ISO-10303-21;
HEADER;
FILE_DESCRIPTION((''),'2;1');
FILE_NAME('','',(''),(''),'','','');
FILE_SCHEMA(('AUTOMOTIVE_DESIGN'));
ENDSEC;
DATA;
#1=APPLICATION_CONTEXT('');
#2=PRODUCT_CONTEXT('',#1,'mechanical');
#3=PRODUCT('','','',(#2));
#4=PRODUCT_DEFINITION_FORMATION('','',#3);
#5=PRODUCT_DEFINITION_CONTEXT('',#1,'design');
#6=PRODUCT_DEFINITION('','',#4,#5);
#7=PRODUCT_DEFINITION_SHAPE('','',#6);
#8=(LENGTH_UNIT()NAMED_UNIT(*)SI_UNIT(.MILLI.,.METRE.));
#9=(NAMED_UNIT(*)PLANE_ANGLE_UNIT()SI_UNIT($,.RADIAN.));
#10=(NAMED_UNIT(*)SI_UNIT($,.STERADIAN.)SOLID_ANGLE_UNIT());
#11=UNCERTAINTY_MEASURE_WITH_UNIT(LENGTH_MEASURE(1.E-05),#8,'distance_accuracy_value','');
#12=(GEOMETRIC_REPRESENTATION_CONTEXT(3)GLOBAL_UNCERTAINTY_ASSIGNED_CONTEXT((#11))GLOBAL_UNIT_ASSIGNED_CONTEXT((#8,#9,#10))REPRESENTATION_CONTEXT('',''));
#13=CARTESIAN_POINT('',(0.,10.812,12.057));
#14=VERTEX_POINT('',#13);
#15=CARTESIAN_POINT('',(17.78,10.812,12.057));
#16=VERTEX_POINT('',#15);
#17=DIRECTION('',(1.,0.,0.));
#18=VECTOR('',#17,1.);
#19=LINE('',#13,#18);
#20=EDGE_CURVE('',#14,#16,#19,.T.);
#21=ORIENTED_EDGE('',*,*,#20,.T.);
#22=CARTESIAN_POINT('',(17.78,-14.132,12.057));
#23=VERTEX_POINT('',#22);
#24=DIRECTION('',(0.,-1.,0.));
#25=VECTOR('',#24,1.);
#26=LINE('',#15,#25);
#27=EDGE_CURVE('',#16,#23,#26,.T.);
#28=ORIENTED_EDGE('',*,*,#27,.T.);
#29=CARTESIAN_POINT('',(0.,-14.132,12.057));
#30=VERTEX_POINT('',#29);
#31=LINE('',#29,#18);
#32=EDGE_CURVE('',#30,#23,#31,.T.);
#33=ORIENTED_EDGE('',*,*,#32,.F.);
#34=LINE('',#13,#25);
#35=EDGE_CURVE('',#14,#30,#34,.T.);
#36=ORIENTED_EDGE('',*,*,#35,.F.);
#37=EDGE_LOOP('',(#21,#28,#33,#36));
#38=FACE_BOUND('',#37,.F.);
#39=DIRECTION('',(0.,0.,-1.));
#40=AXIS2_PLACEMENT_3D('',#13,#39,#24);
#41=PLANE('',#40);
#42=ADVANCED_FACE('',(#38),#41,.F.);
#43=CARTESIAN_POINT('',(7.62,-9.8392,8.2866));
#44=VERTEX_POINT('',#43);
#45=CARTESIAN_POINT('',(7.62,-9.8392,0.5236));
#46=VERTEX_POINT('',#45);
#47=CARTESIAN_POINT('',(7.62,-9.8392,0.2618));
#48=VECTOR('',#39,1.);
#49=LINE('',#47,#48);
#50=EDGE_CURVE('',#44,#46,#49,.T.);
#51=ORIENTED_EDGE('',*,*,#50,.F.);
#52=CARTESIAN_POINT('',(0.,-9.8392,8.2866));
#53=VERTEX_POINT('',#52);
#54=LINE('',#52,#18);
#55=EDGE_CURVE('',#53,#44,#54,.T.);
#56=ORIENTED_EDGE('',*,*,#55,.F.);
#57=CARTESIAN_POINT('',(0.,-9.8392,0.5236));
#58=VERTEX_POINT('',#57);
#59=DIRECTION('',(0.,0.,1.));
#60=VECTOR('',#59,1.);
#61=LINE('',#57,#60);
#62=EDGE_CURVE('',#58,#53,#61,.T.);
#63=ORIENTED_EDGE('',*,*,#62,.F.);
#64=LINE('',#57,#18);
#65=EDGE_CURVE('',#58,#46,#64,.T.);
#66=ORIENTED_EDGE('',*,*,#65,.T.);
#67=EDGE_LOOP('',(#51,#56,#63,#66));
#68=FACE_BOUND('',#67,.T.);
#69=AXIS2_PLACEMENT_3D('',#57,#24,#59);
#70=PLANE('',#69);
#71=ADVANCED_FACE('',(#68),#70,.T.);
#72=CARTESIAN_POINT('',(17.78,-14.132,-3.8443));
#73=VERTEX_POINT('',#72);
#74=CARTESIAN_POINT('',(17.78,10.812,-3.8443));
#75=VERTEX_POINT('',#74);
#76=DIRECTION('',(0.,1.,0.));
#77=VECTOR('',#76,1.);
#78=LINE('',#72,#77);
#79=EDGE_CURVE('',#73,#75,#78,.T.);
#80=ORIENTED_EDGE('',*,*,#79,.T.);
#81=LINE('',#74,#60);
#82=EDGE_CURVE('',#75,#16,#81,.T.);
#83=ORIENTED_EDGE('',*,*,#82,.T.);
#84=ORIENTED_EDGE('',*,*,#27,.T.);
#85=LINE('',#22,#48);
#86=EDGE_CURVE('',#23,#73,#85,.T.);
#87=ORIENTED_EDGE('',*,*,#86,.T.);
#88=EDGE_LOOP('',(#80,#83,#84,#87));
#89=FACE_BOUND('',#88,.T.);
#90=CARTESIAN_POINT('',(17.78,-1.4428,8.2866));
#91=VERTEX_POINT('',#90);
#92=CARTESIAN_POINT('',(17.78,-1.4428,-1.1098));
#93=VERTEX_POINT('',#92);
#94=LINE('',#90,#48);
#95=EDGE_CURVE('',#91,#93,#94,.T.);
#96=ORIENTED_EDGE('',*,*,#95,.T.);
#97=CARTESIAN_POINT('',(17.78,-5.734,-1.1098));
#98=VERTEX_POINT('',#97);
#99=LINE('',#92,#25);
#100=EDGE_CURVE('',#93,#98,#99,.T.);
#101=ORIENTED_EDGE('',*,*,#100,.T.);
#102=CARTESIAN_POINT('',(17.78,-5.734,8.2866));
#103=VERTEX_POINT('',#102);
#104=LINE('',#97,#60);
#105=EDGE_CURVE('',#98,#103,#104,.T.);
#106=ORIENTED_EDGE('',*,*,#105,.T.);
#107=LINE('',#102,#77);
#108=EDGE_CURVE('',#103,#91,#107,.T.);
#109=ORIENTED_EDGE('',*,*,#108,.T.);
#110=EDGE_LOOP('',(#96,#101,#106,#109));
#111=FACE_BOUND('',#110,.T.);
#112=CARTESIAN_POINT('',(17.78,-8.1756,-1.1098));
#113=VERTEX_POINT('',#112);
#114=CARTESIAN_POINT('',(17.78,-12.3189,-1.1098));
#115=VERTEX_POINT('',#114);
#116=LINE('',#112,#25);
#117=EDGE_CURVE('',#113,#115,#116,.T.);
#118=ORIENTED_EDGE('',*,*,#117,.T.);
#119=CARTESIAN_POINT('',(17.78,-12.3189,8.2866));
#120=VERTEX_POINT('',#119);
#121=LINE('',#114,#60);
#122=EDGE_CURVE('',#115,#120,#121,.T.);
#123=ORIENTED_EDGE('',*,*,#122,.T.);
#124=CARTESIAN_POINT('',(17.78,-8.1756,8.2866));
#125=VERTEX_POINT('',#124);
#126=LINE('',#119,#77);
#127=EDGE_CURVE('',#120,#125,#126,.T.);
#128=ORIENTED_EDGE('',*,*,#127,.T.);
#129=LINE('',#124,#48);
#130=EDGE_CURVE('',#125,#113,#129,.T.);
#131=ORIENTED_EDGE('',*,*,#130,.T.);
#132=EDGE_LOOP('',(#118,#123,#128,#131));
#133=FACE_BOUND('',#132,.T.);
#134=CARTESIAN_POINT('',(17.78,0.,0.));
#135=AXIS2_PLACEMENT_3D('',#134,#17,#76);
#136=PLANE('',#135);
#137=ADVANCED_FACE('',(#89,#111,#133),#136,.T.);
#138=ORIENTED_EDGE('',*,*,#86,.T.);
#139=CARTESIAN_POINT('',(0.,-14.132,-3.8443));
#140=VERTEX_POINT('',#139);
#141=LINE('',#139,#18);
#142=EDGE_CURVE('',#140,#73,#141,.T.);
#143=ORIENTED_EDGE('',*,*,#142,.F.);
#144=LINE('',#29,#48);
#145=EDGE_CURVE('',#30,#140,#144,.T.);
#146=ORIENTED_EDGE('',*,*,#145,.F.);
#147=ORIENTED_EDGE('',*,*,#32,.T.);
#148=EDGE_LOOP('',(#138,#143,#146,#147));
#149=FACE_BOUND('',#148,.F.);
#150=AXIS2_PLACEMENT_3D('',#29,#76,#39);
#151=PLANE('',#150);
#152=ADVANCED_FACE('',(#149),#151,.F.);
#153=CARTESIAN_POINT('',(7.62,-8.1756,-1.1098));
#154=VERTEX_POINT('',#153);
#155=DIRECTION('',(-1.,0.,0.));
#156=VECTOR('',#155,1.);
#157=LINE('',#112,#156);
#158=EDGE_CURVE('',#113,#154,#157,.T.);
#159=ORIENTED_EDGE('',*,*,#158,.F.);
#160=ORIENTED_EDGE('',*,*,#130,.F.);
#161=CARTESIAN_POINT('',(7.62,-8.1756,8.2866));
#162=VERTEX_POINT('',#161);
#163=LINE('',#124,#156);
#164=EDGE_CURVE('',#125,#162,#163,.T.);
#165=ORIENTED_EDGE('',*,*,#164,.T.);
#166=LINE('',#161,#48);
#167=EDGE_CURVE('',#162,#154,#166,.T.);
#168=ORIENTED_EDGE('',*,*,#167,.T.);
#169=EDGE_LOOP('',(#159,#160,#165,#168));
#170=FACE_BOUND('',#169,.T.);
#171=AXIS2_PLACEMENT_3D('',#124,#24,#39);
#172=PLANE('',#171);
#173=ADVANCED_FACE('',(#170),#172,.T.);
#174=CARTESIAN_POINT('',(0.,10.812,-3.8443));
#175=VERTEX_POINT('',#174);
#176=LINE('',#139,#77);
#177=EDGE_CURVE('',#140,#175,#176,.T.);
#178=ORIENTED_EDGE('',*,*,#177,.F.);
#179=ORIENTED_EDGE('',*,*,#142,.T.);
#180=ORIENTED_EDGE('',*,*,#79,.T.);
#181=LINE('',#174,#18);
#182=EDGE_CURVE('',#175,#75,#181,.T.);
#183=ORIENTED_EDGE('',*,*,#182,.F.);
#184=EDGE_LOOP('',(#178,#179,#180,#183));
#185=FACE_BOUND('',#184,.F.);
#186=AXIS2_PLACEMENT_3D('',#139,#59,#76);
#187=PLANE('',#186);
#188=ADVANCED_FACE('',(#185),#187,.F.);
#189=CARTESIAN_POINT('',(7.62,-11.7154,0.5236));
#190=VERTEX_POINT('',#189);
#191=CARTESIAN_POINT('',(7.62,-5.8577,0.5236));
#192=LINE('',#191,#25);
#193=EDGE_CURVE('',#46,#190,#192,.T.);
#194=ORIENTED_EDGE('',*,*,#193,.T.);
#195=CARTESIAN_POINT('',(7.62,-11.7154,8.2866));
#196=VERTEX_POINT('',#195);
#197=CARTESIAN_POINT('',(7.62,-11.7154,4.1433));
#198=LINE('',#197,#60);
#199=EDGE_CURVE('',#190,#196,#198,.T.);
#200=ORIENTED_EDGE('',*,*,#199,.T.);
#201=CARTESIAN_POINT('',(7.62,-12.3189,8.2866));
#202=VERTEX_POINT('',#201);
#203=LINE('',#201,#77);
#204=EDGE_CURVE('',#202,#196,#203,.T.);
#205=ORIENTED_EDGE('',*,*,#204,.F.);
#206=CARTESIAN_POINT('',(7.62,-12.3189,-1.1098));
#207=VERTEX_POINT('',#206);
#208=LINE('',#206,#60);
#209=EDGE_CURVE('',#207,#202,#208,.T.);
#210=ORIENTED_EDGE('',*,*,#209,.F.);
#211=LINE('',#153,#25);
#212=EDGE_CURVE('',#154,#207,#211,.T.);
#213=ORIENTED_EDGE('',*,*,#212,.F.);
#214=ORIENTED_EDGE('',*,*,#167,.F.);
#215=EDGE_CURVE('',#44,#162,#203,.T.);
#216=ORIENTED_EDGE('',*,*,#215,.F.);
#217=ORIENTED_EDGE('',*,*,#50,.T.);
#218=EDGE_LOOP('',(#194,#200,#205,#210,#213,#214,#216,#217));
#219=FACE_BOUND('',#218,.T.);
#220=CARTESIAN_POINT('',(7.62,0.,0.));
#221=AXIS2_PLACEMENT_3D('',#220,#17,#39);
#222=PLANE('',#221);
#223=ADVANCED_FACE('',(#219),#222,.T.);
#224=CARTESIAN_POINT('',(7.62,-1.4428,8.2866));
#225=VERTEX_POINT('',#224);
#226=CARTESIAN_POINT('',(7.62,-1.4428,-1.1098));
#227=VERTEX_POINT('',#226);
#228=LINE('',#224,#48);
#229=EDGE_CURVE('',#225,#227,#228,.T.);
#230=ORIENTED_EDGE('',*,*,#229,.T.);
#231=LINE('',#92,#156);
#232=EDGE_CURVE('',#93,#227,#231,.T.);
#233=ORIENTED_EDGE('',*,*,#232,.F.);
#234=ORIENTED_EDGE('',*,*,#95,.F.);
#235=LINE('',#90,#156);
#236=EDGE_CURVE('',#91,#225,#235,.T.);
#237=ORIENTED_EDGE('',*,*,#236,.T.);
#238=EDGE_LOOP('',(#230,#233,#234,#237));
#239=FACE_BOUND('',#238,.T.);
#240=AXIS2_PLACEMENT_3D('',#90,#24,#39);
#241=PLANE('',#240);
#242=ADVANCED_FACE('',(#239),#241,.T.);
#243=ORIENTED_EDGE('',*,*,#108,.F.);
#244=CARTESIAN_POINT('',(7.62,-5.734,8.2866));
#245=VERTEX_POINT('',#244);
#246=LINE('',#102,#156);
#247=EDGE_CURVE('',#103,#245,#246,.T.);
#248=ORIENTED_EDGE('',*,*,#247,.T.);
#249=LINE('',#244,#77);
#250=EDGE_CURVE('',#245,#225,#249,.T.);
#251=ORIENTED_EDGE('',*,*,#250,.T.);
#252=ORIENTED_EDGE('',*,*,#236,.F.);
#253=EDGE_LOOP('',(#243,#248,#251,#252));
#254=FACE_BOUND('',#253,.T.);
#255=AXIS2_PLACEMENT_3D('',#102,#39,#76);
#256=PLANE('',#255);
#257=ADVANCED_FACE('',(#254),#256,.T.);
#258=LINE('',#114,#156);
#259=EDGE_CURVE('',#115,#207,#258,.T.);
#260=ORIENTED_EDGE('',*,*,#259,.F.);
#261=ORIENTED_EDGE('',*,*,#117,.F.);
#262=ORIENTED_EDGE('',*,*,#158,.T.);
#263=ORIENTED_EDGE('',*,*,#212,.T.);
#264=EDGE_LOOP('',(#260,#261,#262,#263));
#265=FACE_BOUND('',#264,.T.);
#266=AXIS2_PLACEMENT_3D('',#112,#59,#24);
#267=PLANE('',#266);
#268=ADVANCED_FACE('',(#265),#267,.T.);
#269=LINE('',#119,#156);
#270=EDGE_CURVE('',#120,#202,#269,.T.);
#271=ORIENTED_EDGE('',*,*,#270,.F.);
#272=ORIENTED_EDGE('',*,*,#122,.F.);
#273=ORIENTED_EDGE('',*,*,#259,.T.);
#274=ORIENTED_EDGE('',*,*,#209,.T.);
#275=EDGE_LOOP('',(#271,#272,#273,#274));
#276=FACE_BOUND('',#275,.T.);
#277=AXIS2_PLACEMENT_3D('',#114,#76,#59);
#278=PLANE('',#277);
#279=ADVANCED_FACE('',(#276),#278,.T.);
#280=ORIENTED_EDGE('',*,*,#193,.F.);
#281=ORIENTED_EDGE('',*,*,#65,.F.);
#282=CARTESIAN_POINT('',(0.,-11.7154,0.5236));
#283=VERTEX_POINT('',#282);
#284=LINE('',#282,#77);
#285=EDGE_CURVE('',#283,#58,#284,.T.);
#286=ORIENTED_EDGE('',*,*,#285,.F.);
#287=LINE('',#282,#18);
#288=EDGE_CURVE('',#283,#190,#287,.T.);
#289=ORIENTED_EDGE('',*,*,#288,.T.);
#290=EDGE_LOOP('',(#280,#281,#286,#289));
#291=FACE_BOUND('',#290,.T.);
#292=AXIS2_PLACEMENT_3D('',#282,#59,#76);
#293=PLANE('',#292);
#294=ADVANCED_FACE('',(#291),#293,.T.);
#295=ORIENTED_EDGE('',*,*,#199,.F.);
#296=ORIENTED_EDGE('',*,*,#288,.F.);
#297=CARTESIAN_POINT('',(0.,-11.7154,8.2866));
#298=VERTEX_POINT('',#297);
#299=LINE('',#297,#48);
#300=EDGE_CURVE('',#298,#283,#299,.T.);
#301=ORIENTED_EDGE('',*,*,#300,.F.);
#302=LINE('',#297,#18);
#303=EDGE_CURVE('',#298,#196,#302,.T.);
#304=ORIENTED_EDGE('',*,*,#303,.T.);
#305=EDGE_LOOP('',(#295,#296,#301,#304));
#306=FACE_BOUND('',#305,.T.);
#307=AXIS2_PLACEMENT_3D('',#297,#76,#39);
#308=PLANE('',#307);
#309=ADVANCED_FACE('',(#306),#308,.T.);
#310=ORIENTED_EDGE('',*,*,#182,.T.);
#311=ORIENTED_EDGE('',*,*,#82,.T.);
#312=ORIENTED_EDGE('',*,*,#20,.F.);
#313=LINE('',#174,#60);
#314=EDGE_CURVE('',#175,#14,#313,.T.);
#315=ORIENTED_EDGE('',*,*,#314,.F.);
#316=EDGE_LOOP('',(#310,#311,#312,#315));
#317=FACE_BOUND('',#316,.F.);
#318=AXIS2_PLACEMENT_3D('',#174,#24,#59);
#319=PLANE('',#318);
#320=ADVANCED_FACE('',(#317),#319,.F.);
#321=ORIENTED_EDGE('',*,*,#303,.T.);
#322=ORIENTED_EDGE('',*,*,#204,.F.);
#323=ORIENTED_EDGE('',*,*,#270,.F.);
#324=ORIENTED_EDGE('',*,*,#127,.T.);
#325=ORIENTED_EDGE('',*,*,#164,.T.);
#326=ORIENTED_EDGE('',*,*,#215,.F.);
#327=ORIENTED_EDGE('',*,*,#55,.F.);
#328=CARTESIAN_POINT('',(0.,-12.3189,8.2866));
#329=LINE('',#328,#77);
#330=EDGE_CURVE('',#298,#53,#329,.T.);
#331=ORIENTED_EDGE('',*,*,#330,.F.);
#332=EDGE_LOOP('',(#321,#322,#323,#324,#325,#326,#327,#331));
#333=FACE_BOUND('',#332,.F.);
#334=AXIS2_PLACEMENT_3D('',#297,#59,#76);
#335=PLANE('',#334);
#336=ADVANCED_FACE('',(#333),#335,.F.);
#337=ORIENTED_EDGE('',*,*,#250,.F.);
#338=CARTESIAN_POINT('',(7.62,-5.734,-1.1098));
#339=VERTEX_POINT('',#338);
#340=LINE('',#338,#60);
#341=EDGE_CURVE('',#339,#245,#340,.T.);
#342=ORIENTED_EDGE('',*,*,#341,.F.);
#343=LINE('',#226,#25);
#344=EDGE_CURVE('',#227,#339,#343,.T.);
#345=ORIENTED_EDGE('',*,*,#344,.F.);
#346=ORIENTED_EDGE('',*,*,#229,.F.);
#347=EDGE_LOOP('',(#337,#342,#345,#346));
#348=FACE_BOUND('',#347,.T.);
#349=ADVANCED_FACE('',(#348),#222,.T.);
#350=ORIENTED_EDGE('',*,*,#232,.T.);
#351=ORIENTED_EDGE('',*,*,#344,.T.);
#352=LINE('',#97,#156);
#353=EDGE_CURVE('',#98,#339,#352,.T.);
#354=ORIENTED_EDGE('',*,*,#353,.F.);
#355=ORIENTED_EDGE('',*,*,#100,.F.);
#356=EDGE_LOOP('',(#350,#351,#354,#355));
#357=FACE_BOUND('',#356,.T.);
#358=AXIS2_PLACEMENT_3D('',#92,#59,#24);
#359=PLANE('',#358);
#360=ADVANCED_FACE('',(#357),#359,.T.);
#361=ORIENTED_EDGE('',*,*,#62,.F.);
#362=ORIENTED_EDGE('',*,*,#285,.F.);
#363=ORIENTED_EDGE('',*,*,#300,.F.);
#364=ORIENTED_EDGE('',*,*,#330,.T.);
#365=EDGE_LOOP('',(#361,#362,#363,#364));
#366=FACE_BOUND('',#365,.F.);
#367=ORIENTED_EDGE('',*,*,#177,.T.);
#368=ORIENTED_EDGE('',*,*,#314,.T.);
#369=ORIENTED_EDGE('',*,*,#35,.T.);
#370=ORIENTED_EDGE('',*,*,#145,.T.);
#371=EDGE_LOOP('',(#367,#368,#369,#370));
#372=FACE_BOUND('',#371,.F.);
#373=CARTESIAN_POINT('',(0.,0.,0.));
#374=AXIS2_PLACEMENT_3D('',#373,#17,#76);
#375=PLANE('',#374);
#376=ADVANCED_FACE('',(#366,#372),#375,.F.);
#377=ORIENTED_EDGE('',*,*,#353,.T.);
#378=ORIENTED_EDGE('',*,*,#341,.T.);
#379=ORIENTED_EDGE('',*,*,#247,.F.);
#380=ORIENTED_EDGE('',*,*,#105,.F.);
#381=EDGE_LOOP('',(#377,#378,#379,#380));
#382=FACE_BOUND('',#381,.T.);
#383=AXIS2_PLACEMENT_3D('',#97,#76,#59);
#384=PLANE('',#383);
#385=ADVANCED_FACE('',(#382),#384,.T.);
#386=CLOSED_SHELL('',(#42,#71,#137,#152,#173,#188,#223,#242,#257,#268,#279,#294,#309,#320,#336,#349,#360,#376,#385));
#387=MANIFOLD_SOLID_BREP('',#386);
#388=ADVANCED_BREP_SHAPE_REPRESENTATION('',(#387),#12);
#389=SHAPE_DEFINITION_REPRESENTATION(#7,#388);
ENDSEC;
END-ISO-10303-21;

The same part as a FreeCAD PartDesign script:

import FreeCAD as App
import Part
import Sketcher

V = App.Vector
Q = App.Units.Quantity


def add_polygon(sketch, points):
    """Adds a closed chain of lines whose ends are joined by coincident constraints."""
    first, n = sketch.GeometryCount, len(points)
    for a, b in zip(points, points[1:] + points[:1]):
        sketch.addGeometry(Part.LineSegment(App.Vector(*a, 0), App.Vector(*b, 0)), False)
    for i in range(n):
        sketch.addConstraint(Sketcher.Constraint("Coincident", first + i, 2, first + (i + 1) % n, 1))

doc = App.newDocument("Part")
body = doc.addObject("PartDesign::Body", "Body")

sketch1 = body.newObject("Sketcher::SketchObject", "Sketch")
sketch1.AttachmentSupport = (doc.getObject("YZ_Plane"), [""])
sketch1.MapMode = "FlatFace"
add_polygon(sketch1, [(10.812, -3.8443), (10.812, 12.057), (-14.132, 12.057), (-14.132, -3.8443)])
sketch1.addConstraint(Sketcher.Constraint("Vertical", 0))
sketch1.addConstraint(Sketcher.Constraint("Horizontal", 1))
sketch1.addConstraint(Sketcher.Constraint("Vertical", 2))
sketch1.addConstraint(Sketcher.Constraint("Horizontal", 3))
sketch1.addConstraint(Sketcher.Constraint("DistanceX", 1, 2, 1, 1, Q("24.944 mm")))
sketch1.addConstraint(Sketcher.Constraint("DistanceY", 0, 1, 0, 2, Q("15.9013 mm")))
sketch1.addConstraint(Sketcher.Constraint("DistanceX", -1, 1, 0, 2, Q("10.812 mm")))
sketch1.addConstraint(Sketcher.Constraint("DistanceY", -1, 1, 0, 2, Q("12.057 mm")))
pad1 = body.newObject("PartDesign::Pad", "Pad")
pad1.Profile = sketch1
pad1.Length = Q("0.7 in")

sketch2 = body.newObject("Sketcher::SketchObject", "Sketch001")
sketch2.AttachmentSupport = (doc.getObject("YZ_Plane"), [""])
sketch2.MapMode = "FlatFace"
sketch2.AttachmentOffset = App.Placement(V(0, 0, 0.7 * 25.4), App.Rotation())
add_polygon(sketch2, [(-8.1756, -1.1098), (-8.1756, 8.2866), (-12.3189, 8.2866), (-12.3189, -1.1098)])
add_polygon(sketch2, [(-1.4428, -1.1098), (-1.4428, 8.2866), (-5.734, 8.2866), (-5.734, -1.1098)])
sketch2.addConstraint(Sketcher.Constraint("Vertical", 0))
sketch2.addConstraint(Sketcher.Constraint("Horizontal", 1))
sketch2.addConstraint(Sketcher.Constraint("Vertical", 2))
sketch2.addConstraint(Sketcher.Constraint("Horizontal", 3))
sketch2.addConstraint(Sketcher.Constraint("Vertical", 4))
sketch2.addConstraint(Sketcher.Constraint("Horizontal", 5))
sketch2.addConstraint(Sketcher.Constraint("Vertical", 6))
sketch2.addConstraint(Sketcher.Constraint("Horizontal", 7))
sketch2.addConstraint(Sketcher.Constraint("Horizontal", 1, 2, 4, 2))
sketch2.addConstraint(Sketcher.Constraint("Horizontal", 3, 2, 6, 2))
sketch2.addConstraint(Sketcher.Constraint("DistanceX", 1, 2, -1, 1, Q("0.485 in")))
sketch2.addConstraint(Sketcher.Constraint("DistanceX", 1, 2, 1, 1, Q("4.1433 mm")))
sketch2.addConstraint(Sketcher.Constraint("DistanceX", 5, 2, 5, 1, Q("4.2912 mm")))
sketch2.addConstraint(Sketcher.Constraint("DistanceY", 0, 1, 0, 2, Q("9.3964 mm")))
sketch2.addConstraint(Sketcher.Constraint("DistanceY", 2, 2, -1, 1, Q("0.0437 in")))
sketch2.addConstraint(Sketcher.Constraint("DistanceX", 4, 2, -1, 1, Q("0.0568 in")))
pocket1 = body.newObject("PartDesign::Pocket", "Pocket")
pocket1.Profile = sketch2
pocket1.Length = Q("0.4 in")

sketch3 = body.newObject("Sketcher::SketchObject", "Sketch002")
sketch3.AttachmentSupport = (doc.getObject("YZ_Plane"), [""])
sketch3.MapMode = "FlatFace"
add_polygon(sketch3, [(-11.7154, 0.5236), (-11.7154, 8.2866), (-9.8392, 8.2866), (-9.8392, 0.5236)])
sketch3.addConstraint(Sketcher.Constraint("Vertical", 0))
sketch3.addConstraint(Sketcher.Constraint("Horizontal", 1))
sketch3.addConstraint(Sketcher.Constraint("Vertical", 2))
sketch3.addConstraint(Sketcher.Constraint("Horizontal", 3))
sketch3.addConstraint(Sketcher.Constraint("DistanceX", 1, 1, 1, 2, Q("1.8762 mm")))
sketch3.addConstraint(Sketcher.Constraint("DistanceY", 0, 1, 0, 2, Q("7.763 mm")))
sketch3.addConstraint(Sketcher.Constraint("DistanceX", 0, 2, -1, 1, Q("11.7154 mm")))
sketch3.addConstraint(Sketcher.Constraint("DistanceY", -1, 1, 0, 2, Q("8.2866 mm")))
pocket2 = body.newObject("PartDesign::Pocket", "Pocket001")
pocket2.Profile = sketch3
pocket2.Length = Q("1 in")
pocket2.Reversed = True

doc.recompute()
